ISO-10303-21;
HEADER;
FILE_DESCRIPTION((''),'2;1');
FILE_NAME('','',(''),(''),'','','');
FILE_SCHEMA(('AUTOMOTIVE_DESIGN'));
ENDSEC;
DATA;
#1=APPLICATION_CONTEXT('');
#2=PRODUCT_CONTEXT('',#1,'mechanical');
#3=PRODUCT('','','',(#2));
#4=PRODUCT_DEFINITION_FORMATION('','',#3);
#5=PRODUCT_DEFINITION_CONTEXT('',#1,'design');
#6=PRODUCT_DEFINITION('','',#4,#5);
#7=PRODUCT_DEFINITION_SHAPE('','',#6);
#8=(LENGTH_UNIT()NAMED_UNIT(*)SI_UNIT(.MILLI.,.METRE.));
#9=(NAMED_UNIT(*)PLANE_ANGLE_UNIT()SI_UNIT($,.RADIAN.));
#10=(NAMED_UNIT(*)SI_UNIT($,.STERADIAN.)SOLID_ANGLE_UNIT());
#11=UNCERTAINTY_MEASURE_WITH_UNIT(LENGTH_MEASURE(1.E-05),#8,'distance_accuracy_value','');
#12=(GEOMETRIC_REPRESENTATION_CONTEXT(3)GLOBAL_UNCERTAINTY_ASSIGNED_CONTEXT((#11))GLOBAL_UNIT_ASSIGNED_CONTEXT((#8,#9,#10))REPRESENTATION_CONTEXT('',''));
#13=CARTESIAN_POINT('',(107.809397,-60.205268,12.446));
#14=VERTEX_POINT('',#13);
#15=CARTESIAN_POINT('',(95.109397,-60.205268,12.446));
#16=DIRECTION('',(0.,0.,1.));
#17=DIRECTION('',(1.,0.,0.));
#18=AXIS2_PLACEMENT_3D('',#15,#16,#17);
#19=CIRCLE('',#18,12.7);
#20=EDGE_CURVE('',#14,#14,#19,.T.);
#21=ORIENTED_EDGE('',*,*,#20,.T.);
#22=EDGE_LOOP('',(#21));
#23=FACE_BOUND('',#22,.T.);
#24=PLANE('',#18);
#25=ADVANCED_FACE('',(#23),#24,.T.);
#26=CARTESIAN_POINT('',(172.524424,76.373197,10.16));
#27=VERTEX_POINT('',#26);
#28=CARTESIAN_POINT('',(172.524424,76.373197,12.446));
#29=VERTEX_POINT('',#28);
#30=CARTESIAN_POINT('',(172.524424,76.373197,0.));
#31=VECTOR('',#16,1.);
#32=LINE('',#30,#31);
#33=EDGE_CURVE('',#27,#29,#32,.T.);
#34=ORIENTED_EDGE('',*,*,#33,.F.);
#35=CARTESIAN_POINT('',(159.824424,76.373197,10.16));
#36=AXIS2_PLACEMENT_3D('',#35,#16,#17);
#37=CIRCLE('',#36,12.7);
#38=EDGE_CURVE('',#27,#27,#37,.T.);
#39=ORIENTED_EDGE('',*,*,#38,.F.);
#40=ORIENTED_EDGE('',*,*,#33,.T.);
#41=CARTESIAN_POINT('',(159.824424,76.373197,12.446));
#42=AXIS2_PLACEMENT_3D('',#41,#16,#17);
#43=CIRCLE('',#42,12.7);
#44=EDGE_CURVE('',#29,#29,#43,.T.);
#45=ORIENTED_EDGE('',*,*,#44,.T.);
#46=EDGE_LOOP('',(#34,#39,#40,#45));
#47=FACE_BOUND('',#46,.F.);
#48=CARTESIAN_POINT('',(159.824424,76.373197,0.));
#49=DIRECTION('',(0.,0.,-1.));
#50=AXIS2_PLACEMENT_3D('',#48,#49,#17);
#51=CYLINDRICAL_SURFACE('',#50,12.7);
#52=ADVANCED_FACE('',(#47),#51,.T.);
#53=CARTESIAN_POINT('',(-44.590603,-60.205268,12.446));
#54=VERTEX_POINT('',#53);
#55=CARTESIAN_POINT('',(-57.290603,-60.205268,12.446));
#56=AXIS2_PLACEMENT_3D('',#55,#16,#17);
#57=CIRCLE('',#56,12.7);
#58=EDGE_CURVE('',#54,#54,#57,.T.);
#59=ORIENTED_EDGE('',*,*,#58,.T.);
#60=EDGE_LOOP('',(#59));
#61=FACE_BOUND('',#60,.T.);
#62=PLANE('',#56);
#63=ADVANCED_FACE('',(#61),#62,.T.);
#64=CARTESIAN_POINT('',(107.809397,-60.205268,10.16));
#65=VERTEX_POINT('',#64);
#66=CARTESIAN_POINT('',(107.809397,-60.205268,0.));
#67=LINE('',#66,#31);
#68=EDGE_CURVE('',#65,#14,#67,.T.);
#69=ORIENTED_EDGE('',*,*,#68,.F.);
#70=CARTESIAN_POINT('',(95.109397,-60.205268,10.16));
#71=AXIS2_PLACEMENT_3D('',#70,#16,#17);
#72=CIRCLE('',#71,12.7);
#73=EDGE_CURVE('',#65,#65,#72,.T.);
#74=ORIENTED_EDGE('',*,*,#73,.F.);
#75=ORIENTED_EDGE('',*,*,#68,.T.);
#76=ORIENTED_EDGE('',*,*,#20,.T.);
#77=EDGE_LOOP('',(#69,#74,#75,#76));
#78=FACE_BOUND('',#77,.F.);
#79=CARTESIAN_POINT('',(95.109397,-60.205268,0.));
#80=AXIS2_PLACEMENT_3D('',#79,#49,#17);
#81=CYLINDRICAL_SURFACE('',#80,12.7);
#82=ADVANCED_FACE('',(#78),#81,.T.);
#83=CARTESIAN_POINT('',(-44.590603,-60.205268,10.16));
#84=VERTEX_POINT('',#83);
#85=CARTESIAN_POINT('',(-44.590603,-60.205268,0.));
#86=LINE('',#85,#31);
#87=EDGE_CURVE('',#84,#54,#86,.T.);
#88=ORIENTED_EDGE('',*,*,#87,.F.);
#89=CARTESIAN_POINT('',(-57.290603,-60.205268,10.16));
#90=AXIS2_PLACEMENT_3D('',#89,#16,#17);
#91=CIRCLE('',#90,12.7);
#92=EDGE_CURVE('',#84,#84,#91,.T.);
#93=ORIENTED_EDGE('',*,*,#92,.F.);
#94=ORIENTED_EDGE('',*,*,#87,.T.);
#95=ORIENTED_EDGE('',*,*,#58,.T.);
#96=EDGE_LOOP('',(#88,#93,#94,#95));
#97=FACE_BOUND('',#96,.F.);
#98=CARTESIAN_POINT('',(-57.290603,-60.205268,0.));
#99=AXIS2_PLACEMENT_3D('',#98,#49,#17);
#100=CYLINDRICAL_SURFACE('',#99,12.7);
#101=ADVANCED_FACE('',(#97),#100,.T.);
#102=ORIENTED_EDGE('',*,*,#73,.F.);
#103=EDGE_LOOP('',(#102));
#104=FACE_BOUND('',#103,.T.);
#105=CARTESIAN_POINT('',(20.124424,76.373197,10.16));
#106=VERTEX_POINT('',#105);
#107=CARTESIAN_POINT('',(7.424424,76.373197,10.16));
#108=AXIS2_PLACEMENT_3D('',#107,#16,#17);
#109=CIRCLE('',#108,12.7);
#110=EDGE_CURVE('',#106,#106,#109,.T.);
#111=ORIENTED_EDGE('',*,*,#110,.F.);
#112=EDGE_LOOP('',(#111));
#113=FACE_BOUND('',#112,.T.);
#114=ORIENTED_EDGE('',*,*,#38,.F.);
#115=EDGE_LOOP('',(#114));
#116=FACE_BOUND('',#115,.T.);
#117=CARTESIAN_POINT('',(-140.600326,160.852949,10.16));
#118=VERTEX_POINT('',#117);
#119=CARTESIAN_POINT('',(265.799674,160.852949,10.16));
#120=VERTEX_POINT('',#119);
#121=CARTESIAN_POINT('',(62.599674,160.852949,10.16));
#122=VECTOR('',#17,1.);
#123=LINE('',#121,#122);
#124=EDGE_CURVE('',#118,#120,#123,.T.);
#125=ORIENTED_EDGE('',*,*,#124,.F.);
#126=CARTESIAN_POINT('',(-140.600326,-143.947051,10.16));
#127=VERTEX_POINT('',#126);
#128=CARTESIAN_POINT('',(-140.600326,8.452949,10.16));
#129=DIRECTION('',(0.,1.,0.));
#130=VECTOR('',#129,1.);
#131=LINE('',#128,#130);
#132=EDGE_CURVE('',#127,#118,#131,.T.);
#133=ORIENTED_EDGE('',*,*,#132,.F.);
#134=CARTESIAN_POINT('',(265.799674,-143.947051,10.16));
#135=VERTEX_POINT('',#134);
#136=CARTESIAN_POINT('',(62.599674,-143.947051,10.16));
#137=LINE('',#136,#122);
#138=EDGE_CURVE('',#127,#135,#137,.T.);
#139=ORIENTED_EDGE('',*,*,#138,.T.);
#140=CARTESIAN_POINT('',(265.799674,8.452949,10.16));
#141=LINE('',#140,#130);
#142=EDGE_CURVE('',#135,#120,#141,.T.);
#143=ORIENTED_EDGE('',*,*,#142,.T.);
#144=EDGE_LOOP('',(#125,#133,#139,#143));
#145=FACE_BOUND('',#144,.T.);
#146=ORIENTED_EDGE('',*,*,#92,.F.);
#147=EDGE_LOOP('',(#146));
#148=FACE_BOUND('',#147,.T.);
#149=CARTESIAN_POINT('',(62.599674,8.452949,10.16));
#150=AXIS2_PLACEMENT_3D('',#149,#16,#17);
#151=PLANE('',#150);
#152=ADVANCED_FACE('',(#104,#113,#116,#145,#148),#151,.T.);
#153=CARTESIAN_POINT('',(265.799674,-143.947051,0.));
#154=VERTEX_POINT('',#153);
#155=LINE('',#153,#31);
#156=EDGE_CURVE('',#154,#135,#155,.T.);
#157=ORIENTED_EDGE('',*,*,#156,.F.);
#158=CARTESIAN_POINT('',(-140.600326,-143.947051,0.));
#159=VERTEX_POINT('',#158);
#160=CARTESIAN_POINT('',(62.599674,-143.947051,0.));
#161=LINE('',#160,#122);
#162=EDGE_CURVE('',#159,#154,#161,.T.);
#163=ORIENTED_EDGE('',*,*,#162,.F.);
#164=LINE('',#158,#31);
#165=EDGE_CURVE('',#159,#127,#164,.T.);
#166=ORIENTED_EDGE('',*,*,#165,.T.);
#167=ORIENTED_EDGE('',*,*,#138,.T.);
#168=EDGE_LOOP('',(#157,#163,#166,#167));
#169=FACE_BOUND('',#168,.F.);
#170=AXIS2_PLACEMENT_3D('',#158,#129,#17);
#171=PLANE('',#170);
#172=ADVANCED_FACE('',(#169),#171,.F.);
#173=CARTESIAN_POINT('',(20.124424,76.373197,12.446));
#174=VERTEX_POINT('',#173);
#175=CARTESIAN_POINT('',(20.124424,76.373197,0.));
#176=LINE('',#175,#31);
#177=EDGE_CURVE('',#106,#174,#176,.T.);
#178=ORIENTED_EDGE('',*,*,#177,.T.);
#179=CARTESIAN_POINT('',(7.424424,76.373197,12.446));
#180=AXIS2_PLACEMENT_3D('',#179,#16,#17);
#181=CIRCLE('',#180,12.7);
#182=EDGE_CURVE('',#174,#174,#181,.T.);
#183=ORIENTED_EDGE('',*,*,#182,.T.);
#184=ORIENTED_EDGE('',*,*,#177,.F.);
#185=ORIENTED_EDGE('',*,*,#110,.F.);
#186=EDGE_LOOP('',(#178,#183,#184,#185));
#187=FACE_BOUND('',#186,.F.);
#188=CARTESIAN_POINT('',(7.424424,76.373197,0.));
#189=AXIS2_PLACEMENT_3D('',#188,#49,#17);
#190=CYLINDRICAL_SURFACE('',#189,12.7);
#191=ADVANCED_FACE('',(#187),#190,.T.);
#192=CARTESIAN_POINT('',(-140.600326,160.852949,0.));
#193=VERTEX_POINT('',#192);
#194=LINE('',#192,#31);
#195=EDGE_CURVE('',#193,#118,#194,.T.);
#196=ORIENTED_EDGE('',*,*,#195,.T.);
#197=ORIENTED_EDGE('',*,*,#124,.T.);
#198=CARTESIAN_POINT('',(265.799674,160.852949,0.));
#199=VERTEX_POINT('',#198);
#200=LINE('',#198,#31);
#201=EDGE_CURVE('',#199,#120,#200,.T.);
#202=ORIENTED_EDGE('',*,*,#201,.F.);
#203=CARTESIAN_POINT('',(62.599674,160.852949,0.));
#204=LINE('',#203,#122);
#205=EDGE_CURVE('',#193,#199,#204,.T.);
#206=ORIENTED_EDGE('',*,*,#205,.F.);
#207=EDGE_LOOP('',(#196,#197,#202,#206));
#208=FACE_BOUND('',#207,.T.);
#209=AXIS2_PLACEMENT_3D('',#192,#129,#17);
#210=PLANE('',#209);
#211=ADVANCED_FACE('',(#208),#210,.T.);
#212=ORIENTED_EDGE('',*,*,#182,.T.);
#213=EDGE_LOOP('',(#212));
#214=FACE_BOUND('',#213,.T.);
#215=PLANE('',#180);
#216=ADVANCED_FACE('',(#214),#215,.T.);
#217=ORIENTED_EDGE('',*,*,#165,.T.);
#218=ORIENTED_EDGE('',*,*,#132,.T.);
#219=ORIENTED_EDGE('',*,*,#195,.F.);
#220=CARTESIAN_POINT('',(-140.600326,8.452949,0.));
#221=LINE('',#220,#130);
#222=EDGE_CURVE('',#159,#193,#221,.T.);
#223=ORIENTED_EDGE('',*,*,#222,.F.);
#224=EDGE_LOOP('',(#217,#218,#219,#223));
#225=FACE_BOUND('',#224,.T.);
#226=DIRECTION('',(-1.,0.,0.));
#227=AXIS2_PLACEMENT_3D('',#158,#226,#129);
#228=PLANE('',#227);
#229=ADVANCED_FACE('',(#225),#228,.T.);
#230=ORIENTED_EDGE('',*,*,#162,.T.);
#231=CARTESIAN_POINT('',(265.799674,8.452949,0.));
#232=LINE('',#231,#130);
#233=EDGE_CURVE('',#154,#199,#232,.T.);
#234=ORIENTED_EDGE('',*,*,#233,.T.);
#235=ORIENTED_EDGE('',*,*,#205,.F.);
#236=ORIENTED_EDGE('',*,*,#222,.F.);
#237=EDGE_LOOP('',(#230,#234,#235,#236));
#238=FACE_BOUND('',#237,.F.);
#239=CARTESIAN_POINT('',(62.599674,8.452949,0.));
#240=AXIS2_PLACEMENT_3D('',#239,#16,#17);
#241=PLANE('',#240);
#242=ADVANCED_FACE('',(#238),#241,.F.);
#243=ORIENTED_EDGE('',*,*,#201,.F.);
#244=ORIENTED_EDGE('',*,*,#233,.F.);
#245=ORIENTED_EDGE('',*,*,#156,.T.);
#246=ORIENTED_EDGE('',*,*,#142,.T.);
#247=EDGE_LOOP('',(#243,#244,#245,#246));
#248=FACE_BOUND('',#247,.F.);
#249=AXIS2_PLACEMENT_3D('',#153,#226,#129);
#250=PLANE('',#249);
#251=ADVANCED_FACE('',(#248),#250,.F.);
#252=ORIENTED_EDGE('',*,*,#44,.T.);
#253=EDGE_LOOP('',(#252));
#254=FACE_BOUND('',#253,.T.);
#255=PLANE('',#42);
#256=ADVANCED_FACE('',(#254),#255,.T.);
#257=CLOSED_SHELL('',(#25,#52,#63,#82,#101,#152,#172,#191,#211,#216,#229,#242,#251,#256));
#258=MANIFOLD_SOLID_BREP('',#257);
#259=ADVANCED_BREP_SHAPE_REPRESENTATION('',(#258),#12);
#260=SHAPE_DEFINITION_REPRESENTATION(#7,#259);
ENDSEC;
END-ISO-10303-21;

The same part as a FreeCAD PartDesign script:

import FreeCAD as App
import Part
import Sketcher
Q = App.Units.Quantity


def add_polygon(sketch, points):
    """Adds a closed chain of lines whose ends are joined by coincident constraints."""
    first, n = sketch.GeometryCount, len(points)
    for a, b in zip(points, points[1:] + points[:1]):
        sketch.addGeometry(Part.LineSegment(App.Vector(*a, 0), App.Vector(*b, 0)), False)
    for i in range(n):
        sketch.addConstraint(Sketcher.Constraint("Coincident", first + i, 2, first + (i + 1) % n, 1))

doc = App.newDocument("Part")
body = doc.addObject("PartDesign::Body", "Body")

sketch1 = doc.addObject("Sketcher::SketchObject", "Sketch")
body.addObject(sketch1)
sketch1.AttachmentSupport = (doc.XY_Plane, [""])
sketch1.MapMode = "FlatFace"
sketch1.addGeometry(Part.Circle(App.Vector(7, 76, 0), App.Vector(0, 0, 1), 13), False)
sketch1.addConstraint(Sketcher.Constraint("Diameter", 0, Q("1 in")))
sketch1.addConstraint(Sketcher.Constraint("DistanceX", -1, 1, 0, 3, Q("0.2923002 in")))
sketch1.addConstraint(Sketcher.Constraint("DistanceY", -1, 1, 0, 3, Q("76.373197 mm")))
pad1 = doc.addObject("PartDesign::Pad", "Pad")
body.addObject(pad1)
pad1.Profile = sketch1
pad1.Length = Q("0.49 in")
body2 = doc.addObject("PartDesign::Body", "Body001")

sketch2 = doc.addObject("Sketcher::SketchObject", "Sketch001")
body2.addObject(sketch2)
sketch2.AttachmentSupport = (doc.getObject("XY_Plane001"), [""])
sketch2.MapMode = "FlatFace"
sketch2.addGeometry(Part.Circle(App.Vector(160, 76, 0), App.Vector(0, 0, 1), 13), False)
sketch2.addConstraint(Sketcher.Constraint("Diameter", 0, Q("1 in")))
sketch2.addConstraint(Sketcher.Constraint("DistanceX", -1, 1, 0, 3, Q("6.2923002 in")))
sketch2.addConstraint(Sketcher.Constraint("DistanceY", -1, 1, 0, 3, Q("76.373197 mm")))
pad2 = doc.addObject("PartDesign::Pad", "Pad001")
body2.addObject(pad2)
pad2.Profile = sketch2
pad2.Length = Q("0.49 in")
body3 = doc.addObject("PartDesign::Body", "Body002")

sketch3 = doc.addObject("Sketcher::SketchObject", "Sketch002")
body3.addObject(sketch3)
sketch3.AttachmentSupport = (doc.getObject("XY_Plane002"), [""])
sketch3.MapMode = "FlatFace"
sketch3.addGeometry(Part.Circle(App.Vector(-57, -60, 0), App.Vector(0, 0, 1), 13), False)
sketch3.addConstraint(Sketcher.Constraint("Diameter", 0, Q("1 in")))
sketch3.addConstraint(Sketcher.Constraint("DistanceX", 0, 3, -1, 1, Q("57.290603 mm")))
sketch3.addConstraint(Sketcher.Constraint("DistanceY", 0, 3, -1, 1, Q("60.205268 mm")))
pad3 = doc.addObject("PartDesign::Pad", "Pad002")
body3.addObject(pad3)
pad3.Profile = sketch3
pad3.Length = Q("0.49 in")
body4 = doc.addObject("PartDesign::Body", "Body003")

sketch4 = doc.addObject("Sketcher::SketchObject", "Sketch003")
body4.addObject(sketch4)
sketch4.AttachmentSupport = (doc.getObject("XY_Plane003"), [""])
sketch4.MapMode = "FlatFace"
sketch4.addGeometry(Part.Circle(App.Vector(95, -60, 0), App.Vector(0, 0, 1), 13), False)
sketch4.addConstraint(Sketcher.Constraint("Diameter", 0, Q("1 in")))
sketch4.addConstraint(Sketcher.Constraint("DistanceX", -1, 1, 0, 3, Q("95.109397 mm")))
sketch4.addConstraint(Sketcher.Constraint("DistanceY", 0, 3, -1, 1, Q("60.205268 mm")))
pad4 = doc.addObject("PartDesign::Pad", "Pad003")
body4.addObject(pad4)
pad4.Profile = sketch4
pad4.Length = Q("0.49 in")
body.AllowCompound = True
doc.recompute()

boolean = doc.addObject("PartDesign::Boolean", "Boolean")
body.addObject(boolean)
boolean.Type = "Fuse"
boolean.addObjects([body2])
doc.recompute()

boolean2 = doc.addObject("PartDesign::Boolean", "Boolean001")
body.addObject(boolean2)
boolean2.Type = "Fuse"
boolean2.addObjects([body3])
doc.recompute()

boolean3 = doc.addObject("PartDesign::Boolean", "Boolean002")
body.addObject(boolean3)
boolean3.Type = "Fuse"
boolean3.addObjects([body4])

sketch5 = doc.addObject("Sketcher::SketchObject", "Sketch004")
body.addObject(sketch5)
sketch5.AttachmentSupport = (doc.XY_Plane, [""])
sketch5.MapMode = "FlatFace"
add_polygon(sketch5, [(-141, 161), (-141, -144), (266, -144), (266, 161)])
sketch5.addGeometry(Part.Circle(App.Vector(-57, -60, 0), App.Vector(0, 0, 1), 13), False)
sketch5.addGeometry(Part.Circle(App.Vector(95, -60, 0), App.Vector(0, 0, 1), 13), False)
sketch5.addGeometry(Part.Circle(App.Vector(7, 76, 0), App.Vector(0, 0, 1), 13), False)
sketch5.addGeometry(Part.Circle(App.Vector(160, 76, 0), App.Vector(0, 0, 1), 13), False)
sketch5.addConstraint(Sketcher.Constraint("Vertical", 0))
sketch5.addConstraint(Sketcher.Constraint("Horizontal", 1))
sketch5.addConstraint(Sketcher.Constraint("Vertical", 2))
sketch5.addConstraint(Sketcher.Constraint("Horizontal", 3))
sketch5.addConstraint(Sketcher.Constraint("Equal", 4, 5))
sketch5.addConstraint(Sketcher.Constraint("Equal", 5, 6))
sketch5.addConstraint(Sketcher.Constraint("Equal", 6, 7))
sketch5.addConstraint(Sketcher.Constraint("Horizontal", 4, 3, 5, 3))
sketch5.addConstraint(Sketcher.Constraint("Horizontal", 6, 3, 7, 3))
sketch5.addConstraint(Sketcher.Constraint("Diameter", 4, Q("1 in")))
sketch5.addConstraint(Sketcher.Constraint("DistanceX", 1, 1, 1, 2, Q("16 in")))
sketch5.addConstraint(Sketcher.Constraint("DistanceY", 0, 2, 0, 1, Q("12 in")))
sketch5.addConstraint(Sketcher.Constraint("DistanceX", 4, 3, 5, 3, Q("6 in")))
sketch5.addConstraint(Sketcher.Constraint("DistanceX", 6, 3, 7, 3, Q("6 in")))
sketch5.addConstraint(Sketcher.Constraint("DistanceX", -1, 1, 6, 3, Q("0.2923002 in")))
sketch5.addConstraint(Sketcher.Constraint("DistanceY", 0, 2, -1, 1, Q("143.947051 mm")))
sketch5.addConstraint(Sketcher.Constraint("DistanceX", 0, 2, 6, 3, Q("148.024749 mm")))
sketch5.addConstraint(Sketcher.Constraint("DistanceX", 4, 3, -1, 1, Q("57.290603 mm")))
sketch5.addConstraint(Sketcher.Constraint("DistanceY", 4, 3, -1, 1, Q("60.205268 mm")))
sketch5.addConstraint(Sketcher.Constraint("DistanceY", -1, 1, 6, 3, Q("76.373197 mm")))
pad5 = doc.addObject("PartDesign::Pad", "Pad004")
body.addObject(pad5)
pad5.Profile = sketch5
pad5.Length = Q("0.4 in")

doc.recompute()
